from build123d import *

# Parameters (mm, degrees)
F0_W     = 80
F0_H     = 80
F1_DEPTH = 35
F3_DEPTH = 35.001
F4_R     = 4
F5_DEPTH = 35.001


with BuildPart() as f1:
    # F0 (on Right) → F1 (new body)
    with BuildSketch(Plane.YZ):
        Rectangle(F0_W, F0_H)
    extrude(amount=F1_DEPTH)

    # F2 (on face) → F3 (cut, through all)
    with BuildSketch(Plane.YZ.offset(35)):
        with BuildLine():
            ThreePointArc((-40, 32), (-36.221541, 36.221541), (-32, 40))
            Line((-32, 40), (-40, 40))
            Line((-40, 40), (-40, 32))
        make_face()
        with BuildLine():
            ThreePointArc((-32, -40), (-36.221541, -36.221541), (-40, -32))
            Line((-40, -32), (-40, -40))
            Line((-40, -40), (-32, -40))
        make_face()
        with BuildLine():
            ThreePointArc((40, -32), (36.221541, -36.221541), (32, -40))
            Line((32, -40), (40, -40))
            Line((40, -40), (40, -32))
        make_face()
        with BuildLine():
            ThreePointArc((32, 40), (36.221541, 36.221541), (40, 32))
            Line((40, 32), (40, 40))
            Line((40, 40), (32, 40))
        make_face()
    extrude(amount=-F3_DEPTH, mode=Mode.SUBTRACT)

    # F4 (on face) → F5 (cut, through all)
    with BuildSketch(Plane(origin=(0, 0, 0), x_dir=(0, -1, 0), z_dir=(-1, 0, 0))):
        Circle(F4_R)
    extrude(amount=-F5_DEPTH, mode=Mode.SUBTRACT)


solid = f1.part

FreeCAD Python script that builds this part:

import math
import FreeCAD as App
import Part
import Sketcher
from FreeCAD import Vector
Q = App.Units.Quantity

doc = App.newDocument("Part")
body = doc.addObject("PartDesign::Body", "Body")

sketch1 = body.newObject("Sketcher::SketchObject", "Sketch")
sketch1.AttachmentSupport = (doc.getObject("YZ_Plane"), [""])
sketch1.MapMode = "FlatFace"
sketch1.addGeometry([
    Part.LineSegment(Vector(-40, 40, 0), Vector(-40, -40, 0)),
    Part.LineSegment(Vector(-40, -40, 0), Vector(40, -40, 0)),
    Part.LineSegment(Vector(40, -40, 0), Vector(40, 40, 0)),
    Part.LineSegment(Vector(40, 40, 0), Vector(-40, 40, 0)),
], False)
sketch1.addConstraint([
    Sketcher.Constraint("Coincident", 0, 2, 1, 1),
    Sketcher.Constraint("Coincident", 1, 2, 2, 1),
    Sketcher.Constraint("Coincident", 2, 2, 3, 1),
    Sketcher.Constraint("Coincident", 3, 2, 0, 1),
    Sketcher.Constraint("Vertical", 0),
    Sketcher.Constraint("Horizontal", 1),
    Sketcher.Constraint("Vertical", 2),
    Sketcher.Constraint("Horizontal", 3),
    Sketcher.Constraint("Symmetric", 0, 2, 2, 2, -1, 1),
    Sketcher.Constraint("Equal", 3, 0),
    Sketcher.Constraint("DistanceX", 1, 1, 1, 2, Q("80 mm")),
])
pad1 = body.newObject("PartDesign::Pad", "Pad")
pad1.Profile = sketch1
pad1.Length = 35

sketch2 = body.newObject("Sketcher::SketchObject", "Sketch001")
sketch2.AttachmentSupport = (doc.getObject("YZ_Plane"), [""])
sketch2.MapMode = "FlatFace"
sketch2.AttachmentOffset = App.Placement(Vector(0, 0, 35), App.Rotation())
sketch2.addGeometry([
    Part.ArcOfCircle(Part.Circle(Vector(-0.000073, 0.000073, 0), Vector(0, 0, 1), 51.224891), math.radians(128.659795), math.radians(141.340205)),
    Part.LineSegment(Vector(-32, 40, 0), Vector(-40, 40, 0)),
    Part.LineSegment(Vector(-40, 40, 0), Vector(-40, 32, 0)),
    Part.ArcOfCircle(Part.Circle(Vector(-0.000073, -0.000073, 0), Vector(0, 0, 1), 51.224891), math.radians(-141.340205), math.radians(-128.659795)),
    Part.LineSegment(Vector(-40, -32, 0), Vector(-40, -40, 0)),
    Part.LineSegment(Vector(-40, -40, 0), Vector(-32, -40, 0)),
    Part.ArcOfCircle(Part.Circle(Vector(0.000073, -0.000073, 0), Vector(0, 0, 1), 51.224891), math.radians(-51.340205), math.radians(-38.659795)),
    Part.LineSegment(Vector(32, -40, 0), Vector(40, -40, 0)),
    Part.LineSegment(Vector(40, -40, 0), Vector(40, -32, 0)),
    Part.ArcOfCircle(Part.Circle(Vector(0.000073, 0.000073, 0), Vector(0, 0, 1), 51.224891), math.radians(38.659795), math.radians(51.340205)),
    Part.LineSegment(Vector(40, 32, 0), Vector(40, 40, 0)),
    Part.LineSegment(Vector(40, 40, 0), Vector(32, 40, 0)),
], False)
sketch2.addConstraint([
    Sketcher.Constraint("Coincident", 0, 1, 1, 1),
    Sketcher.Constraint("Coincident", 1, 2, 2, 1),
    Sketcher.Constraint("Coincident", 2, 2, 0, 2),
    Sketcher.Constraint("Coincident", 3, 1, 4, 1),
    Sketcher.Constraint("Coincident", 4, 2, 5, 1),
    Sketcher.Constraint("Coincident", 5, 2, 3, 2),
    Sketcher.Constraint("Coincident", 6, 1, 7, 1),
    Sketcher.Constraint("Coincident", 7, 2, 8, 1),
    Sketcher.Constraint("Coincident", 8, 2, 6, 2),
    Sketcher.Constraint("Coincident", 9, 1, 10, 1),
    Sketcher.Constraint("Coincident", 10, 2, 11, 1),
    Sketcher.Constraint("Coincident", 11, 2, 9, 2),
    Sketcher.Constraint("Horizontal", 1),
    Sketcher.Constraint("Vertical", 2),
    Sketcher.Constraint("Vertical", 4),
    Sketcher.Constraint("Horizontal", 5),
    Sketcher.Constraint("Horizontal", 7),
    Sketcher.Constraint("Vertical", 8),
    Sketcher.Constraint("Vertical", 10),
    Sketcher.Constraint("Horizontal", 11),
    Sketcher.Constraint("Equal", 0, 3),
    Sketcher.Constraint("Equal", 3, 6),
    Sketcher.Constraint("Equal", 6, 9),
    Sketcher.Constraint("Symmetric", 0, 3, 6, 3, -1, 1),
    Sketcher.Constraint("Symmetric", 3, 3, 9, 3, -1, 1),
    Sketcher.Constraint("Symmetric", 1, 2, 7, 2, -1, 1),
    Sketcher.Constraint("Symmetric", 4, 2, 10, 2, -1, 1),
    Sketcher.Constraint("Symmetric", 3, 3, 6, 3, -2),
    Sketcher.Constraint("Symmetric", 4, 2, 7, 2, -2),
    Sketcher.Constraint("Equal", 11, 2),
    Sketcher.Constraint("DistanceX", 1, 2, 1, 1, Q("8 mm")),
    Sketcher.Constraint("DistanceX", 0, 1, -1, 1, Q("32 mm")),
    Sketcher.Constraint("DistanceY", -1, 1, 0, 1, Q("40 mm")),
    Sketcher.Constraint("Radius", 0, Q("51.224891 mm")),
])
pocket1 = body.newObject("PartDesign::Pocket", "Pocket")
pocket1.Profile = sketch2
pocket1.Type = "ThroughAll"

sketch3 = body.newObject("Sketcher::SketchObject", "Sketch002")
sketch3.AttachmentSupport = (doc.getObject("YZ_Plane"), [""])
sketch3.MapMode = "FlatFace"
sketch3.addGeometry(Part.Circle(Vector(0, 0, 0), Vector(0, 0, 1), 4), False)
sketch3.addConstraint([
    Sketcher.Constraint("Coincident", 0, 3, -1, 1),
    Sketcher.Constraint("Diameter", 0, Q("8 mm")),
])
pocket2 = body.newObject("PartDesign::Pocket", "Pocket001")
pocket2.Profile = sketch3
pocket2.Type = "ThroughAll"
pocket2.Reversed = True

doc.recompute()
